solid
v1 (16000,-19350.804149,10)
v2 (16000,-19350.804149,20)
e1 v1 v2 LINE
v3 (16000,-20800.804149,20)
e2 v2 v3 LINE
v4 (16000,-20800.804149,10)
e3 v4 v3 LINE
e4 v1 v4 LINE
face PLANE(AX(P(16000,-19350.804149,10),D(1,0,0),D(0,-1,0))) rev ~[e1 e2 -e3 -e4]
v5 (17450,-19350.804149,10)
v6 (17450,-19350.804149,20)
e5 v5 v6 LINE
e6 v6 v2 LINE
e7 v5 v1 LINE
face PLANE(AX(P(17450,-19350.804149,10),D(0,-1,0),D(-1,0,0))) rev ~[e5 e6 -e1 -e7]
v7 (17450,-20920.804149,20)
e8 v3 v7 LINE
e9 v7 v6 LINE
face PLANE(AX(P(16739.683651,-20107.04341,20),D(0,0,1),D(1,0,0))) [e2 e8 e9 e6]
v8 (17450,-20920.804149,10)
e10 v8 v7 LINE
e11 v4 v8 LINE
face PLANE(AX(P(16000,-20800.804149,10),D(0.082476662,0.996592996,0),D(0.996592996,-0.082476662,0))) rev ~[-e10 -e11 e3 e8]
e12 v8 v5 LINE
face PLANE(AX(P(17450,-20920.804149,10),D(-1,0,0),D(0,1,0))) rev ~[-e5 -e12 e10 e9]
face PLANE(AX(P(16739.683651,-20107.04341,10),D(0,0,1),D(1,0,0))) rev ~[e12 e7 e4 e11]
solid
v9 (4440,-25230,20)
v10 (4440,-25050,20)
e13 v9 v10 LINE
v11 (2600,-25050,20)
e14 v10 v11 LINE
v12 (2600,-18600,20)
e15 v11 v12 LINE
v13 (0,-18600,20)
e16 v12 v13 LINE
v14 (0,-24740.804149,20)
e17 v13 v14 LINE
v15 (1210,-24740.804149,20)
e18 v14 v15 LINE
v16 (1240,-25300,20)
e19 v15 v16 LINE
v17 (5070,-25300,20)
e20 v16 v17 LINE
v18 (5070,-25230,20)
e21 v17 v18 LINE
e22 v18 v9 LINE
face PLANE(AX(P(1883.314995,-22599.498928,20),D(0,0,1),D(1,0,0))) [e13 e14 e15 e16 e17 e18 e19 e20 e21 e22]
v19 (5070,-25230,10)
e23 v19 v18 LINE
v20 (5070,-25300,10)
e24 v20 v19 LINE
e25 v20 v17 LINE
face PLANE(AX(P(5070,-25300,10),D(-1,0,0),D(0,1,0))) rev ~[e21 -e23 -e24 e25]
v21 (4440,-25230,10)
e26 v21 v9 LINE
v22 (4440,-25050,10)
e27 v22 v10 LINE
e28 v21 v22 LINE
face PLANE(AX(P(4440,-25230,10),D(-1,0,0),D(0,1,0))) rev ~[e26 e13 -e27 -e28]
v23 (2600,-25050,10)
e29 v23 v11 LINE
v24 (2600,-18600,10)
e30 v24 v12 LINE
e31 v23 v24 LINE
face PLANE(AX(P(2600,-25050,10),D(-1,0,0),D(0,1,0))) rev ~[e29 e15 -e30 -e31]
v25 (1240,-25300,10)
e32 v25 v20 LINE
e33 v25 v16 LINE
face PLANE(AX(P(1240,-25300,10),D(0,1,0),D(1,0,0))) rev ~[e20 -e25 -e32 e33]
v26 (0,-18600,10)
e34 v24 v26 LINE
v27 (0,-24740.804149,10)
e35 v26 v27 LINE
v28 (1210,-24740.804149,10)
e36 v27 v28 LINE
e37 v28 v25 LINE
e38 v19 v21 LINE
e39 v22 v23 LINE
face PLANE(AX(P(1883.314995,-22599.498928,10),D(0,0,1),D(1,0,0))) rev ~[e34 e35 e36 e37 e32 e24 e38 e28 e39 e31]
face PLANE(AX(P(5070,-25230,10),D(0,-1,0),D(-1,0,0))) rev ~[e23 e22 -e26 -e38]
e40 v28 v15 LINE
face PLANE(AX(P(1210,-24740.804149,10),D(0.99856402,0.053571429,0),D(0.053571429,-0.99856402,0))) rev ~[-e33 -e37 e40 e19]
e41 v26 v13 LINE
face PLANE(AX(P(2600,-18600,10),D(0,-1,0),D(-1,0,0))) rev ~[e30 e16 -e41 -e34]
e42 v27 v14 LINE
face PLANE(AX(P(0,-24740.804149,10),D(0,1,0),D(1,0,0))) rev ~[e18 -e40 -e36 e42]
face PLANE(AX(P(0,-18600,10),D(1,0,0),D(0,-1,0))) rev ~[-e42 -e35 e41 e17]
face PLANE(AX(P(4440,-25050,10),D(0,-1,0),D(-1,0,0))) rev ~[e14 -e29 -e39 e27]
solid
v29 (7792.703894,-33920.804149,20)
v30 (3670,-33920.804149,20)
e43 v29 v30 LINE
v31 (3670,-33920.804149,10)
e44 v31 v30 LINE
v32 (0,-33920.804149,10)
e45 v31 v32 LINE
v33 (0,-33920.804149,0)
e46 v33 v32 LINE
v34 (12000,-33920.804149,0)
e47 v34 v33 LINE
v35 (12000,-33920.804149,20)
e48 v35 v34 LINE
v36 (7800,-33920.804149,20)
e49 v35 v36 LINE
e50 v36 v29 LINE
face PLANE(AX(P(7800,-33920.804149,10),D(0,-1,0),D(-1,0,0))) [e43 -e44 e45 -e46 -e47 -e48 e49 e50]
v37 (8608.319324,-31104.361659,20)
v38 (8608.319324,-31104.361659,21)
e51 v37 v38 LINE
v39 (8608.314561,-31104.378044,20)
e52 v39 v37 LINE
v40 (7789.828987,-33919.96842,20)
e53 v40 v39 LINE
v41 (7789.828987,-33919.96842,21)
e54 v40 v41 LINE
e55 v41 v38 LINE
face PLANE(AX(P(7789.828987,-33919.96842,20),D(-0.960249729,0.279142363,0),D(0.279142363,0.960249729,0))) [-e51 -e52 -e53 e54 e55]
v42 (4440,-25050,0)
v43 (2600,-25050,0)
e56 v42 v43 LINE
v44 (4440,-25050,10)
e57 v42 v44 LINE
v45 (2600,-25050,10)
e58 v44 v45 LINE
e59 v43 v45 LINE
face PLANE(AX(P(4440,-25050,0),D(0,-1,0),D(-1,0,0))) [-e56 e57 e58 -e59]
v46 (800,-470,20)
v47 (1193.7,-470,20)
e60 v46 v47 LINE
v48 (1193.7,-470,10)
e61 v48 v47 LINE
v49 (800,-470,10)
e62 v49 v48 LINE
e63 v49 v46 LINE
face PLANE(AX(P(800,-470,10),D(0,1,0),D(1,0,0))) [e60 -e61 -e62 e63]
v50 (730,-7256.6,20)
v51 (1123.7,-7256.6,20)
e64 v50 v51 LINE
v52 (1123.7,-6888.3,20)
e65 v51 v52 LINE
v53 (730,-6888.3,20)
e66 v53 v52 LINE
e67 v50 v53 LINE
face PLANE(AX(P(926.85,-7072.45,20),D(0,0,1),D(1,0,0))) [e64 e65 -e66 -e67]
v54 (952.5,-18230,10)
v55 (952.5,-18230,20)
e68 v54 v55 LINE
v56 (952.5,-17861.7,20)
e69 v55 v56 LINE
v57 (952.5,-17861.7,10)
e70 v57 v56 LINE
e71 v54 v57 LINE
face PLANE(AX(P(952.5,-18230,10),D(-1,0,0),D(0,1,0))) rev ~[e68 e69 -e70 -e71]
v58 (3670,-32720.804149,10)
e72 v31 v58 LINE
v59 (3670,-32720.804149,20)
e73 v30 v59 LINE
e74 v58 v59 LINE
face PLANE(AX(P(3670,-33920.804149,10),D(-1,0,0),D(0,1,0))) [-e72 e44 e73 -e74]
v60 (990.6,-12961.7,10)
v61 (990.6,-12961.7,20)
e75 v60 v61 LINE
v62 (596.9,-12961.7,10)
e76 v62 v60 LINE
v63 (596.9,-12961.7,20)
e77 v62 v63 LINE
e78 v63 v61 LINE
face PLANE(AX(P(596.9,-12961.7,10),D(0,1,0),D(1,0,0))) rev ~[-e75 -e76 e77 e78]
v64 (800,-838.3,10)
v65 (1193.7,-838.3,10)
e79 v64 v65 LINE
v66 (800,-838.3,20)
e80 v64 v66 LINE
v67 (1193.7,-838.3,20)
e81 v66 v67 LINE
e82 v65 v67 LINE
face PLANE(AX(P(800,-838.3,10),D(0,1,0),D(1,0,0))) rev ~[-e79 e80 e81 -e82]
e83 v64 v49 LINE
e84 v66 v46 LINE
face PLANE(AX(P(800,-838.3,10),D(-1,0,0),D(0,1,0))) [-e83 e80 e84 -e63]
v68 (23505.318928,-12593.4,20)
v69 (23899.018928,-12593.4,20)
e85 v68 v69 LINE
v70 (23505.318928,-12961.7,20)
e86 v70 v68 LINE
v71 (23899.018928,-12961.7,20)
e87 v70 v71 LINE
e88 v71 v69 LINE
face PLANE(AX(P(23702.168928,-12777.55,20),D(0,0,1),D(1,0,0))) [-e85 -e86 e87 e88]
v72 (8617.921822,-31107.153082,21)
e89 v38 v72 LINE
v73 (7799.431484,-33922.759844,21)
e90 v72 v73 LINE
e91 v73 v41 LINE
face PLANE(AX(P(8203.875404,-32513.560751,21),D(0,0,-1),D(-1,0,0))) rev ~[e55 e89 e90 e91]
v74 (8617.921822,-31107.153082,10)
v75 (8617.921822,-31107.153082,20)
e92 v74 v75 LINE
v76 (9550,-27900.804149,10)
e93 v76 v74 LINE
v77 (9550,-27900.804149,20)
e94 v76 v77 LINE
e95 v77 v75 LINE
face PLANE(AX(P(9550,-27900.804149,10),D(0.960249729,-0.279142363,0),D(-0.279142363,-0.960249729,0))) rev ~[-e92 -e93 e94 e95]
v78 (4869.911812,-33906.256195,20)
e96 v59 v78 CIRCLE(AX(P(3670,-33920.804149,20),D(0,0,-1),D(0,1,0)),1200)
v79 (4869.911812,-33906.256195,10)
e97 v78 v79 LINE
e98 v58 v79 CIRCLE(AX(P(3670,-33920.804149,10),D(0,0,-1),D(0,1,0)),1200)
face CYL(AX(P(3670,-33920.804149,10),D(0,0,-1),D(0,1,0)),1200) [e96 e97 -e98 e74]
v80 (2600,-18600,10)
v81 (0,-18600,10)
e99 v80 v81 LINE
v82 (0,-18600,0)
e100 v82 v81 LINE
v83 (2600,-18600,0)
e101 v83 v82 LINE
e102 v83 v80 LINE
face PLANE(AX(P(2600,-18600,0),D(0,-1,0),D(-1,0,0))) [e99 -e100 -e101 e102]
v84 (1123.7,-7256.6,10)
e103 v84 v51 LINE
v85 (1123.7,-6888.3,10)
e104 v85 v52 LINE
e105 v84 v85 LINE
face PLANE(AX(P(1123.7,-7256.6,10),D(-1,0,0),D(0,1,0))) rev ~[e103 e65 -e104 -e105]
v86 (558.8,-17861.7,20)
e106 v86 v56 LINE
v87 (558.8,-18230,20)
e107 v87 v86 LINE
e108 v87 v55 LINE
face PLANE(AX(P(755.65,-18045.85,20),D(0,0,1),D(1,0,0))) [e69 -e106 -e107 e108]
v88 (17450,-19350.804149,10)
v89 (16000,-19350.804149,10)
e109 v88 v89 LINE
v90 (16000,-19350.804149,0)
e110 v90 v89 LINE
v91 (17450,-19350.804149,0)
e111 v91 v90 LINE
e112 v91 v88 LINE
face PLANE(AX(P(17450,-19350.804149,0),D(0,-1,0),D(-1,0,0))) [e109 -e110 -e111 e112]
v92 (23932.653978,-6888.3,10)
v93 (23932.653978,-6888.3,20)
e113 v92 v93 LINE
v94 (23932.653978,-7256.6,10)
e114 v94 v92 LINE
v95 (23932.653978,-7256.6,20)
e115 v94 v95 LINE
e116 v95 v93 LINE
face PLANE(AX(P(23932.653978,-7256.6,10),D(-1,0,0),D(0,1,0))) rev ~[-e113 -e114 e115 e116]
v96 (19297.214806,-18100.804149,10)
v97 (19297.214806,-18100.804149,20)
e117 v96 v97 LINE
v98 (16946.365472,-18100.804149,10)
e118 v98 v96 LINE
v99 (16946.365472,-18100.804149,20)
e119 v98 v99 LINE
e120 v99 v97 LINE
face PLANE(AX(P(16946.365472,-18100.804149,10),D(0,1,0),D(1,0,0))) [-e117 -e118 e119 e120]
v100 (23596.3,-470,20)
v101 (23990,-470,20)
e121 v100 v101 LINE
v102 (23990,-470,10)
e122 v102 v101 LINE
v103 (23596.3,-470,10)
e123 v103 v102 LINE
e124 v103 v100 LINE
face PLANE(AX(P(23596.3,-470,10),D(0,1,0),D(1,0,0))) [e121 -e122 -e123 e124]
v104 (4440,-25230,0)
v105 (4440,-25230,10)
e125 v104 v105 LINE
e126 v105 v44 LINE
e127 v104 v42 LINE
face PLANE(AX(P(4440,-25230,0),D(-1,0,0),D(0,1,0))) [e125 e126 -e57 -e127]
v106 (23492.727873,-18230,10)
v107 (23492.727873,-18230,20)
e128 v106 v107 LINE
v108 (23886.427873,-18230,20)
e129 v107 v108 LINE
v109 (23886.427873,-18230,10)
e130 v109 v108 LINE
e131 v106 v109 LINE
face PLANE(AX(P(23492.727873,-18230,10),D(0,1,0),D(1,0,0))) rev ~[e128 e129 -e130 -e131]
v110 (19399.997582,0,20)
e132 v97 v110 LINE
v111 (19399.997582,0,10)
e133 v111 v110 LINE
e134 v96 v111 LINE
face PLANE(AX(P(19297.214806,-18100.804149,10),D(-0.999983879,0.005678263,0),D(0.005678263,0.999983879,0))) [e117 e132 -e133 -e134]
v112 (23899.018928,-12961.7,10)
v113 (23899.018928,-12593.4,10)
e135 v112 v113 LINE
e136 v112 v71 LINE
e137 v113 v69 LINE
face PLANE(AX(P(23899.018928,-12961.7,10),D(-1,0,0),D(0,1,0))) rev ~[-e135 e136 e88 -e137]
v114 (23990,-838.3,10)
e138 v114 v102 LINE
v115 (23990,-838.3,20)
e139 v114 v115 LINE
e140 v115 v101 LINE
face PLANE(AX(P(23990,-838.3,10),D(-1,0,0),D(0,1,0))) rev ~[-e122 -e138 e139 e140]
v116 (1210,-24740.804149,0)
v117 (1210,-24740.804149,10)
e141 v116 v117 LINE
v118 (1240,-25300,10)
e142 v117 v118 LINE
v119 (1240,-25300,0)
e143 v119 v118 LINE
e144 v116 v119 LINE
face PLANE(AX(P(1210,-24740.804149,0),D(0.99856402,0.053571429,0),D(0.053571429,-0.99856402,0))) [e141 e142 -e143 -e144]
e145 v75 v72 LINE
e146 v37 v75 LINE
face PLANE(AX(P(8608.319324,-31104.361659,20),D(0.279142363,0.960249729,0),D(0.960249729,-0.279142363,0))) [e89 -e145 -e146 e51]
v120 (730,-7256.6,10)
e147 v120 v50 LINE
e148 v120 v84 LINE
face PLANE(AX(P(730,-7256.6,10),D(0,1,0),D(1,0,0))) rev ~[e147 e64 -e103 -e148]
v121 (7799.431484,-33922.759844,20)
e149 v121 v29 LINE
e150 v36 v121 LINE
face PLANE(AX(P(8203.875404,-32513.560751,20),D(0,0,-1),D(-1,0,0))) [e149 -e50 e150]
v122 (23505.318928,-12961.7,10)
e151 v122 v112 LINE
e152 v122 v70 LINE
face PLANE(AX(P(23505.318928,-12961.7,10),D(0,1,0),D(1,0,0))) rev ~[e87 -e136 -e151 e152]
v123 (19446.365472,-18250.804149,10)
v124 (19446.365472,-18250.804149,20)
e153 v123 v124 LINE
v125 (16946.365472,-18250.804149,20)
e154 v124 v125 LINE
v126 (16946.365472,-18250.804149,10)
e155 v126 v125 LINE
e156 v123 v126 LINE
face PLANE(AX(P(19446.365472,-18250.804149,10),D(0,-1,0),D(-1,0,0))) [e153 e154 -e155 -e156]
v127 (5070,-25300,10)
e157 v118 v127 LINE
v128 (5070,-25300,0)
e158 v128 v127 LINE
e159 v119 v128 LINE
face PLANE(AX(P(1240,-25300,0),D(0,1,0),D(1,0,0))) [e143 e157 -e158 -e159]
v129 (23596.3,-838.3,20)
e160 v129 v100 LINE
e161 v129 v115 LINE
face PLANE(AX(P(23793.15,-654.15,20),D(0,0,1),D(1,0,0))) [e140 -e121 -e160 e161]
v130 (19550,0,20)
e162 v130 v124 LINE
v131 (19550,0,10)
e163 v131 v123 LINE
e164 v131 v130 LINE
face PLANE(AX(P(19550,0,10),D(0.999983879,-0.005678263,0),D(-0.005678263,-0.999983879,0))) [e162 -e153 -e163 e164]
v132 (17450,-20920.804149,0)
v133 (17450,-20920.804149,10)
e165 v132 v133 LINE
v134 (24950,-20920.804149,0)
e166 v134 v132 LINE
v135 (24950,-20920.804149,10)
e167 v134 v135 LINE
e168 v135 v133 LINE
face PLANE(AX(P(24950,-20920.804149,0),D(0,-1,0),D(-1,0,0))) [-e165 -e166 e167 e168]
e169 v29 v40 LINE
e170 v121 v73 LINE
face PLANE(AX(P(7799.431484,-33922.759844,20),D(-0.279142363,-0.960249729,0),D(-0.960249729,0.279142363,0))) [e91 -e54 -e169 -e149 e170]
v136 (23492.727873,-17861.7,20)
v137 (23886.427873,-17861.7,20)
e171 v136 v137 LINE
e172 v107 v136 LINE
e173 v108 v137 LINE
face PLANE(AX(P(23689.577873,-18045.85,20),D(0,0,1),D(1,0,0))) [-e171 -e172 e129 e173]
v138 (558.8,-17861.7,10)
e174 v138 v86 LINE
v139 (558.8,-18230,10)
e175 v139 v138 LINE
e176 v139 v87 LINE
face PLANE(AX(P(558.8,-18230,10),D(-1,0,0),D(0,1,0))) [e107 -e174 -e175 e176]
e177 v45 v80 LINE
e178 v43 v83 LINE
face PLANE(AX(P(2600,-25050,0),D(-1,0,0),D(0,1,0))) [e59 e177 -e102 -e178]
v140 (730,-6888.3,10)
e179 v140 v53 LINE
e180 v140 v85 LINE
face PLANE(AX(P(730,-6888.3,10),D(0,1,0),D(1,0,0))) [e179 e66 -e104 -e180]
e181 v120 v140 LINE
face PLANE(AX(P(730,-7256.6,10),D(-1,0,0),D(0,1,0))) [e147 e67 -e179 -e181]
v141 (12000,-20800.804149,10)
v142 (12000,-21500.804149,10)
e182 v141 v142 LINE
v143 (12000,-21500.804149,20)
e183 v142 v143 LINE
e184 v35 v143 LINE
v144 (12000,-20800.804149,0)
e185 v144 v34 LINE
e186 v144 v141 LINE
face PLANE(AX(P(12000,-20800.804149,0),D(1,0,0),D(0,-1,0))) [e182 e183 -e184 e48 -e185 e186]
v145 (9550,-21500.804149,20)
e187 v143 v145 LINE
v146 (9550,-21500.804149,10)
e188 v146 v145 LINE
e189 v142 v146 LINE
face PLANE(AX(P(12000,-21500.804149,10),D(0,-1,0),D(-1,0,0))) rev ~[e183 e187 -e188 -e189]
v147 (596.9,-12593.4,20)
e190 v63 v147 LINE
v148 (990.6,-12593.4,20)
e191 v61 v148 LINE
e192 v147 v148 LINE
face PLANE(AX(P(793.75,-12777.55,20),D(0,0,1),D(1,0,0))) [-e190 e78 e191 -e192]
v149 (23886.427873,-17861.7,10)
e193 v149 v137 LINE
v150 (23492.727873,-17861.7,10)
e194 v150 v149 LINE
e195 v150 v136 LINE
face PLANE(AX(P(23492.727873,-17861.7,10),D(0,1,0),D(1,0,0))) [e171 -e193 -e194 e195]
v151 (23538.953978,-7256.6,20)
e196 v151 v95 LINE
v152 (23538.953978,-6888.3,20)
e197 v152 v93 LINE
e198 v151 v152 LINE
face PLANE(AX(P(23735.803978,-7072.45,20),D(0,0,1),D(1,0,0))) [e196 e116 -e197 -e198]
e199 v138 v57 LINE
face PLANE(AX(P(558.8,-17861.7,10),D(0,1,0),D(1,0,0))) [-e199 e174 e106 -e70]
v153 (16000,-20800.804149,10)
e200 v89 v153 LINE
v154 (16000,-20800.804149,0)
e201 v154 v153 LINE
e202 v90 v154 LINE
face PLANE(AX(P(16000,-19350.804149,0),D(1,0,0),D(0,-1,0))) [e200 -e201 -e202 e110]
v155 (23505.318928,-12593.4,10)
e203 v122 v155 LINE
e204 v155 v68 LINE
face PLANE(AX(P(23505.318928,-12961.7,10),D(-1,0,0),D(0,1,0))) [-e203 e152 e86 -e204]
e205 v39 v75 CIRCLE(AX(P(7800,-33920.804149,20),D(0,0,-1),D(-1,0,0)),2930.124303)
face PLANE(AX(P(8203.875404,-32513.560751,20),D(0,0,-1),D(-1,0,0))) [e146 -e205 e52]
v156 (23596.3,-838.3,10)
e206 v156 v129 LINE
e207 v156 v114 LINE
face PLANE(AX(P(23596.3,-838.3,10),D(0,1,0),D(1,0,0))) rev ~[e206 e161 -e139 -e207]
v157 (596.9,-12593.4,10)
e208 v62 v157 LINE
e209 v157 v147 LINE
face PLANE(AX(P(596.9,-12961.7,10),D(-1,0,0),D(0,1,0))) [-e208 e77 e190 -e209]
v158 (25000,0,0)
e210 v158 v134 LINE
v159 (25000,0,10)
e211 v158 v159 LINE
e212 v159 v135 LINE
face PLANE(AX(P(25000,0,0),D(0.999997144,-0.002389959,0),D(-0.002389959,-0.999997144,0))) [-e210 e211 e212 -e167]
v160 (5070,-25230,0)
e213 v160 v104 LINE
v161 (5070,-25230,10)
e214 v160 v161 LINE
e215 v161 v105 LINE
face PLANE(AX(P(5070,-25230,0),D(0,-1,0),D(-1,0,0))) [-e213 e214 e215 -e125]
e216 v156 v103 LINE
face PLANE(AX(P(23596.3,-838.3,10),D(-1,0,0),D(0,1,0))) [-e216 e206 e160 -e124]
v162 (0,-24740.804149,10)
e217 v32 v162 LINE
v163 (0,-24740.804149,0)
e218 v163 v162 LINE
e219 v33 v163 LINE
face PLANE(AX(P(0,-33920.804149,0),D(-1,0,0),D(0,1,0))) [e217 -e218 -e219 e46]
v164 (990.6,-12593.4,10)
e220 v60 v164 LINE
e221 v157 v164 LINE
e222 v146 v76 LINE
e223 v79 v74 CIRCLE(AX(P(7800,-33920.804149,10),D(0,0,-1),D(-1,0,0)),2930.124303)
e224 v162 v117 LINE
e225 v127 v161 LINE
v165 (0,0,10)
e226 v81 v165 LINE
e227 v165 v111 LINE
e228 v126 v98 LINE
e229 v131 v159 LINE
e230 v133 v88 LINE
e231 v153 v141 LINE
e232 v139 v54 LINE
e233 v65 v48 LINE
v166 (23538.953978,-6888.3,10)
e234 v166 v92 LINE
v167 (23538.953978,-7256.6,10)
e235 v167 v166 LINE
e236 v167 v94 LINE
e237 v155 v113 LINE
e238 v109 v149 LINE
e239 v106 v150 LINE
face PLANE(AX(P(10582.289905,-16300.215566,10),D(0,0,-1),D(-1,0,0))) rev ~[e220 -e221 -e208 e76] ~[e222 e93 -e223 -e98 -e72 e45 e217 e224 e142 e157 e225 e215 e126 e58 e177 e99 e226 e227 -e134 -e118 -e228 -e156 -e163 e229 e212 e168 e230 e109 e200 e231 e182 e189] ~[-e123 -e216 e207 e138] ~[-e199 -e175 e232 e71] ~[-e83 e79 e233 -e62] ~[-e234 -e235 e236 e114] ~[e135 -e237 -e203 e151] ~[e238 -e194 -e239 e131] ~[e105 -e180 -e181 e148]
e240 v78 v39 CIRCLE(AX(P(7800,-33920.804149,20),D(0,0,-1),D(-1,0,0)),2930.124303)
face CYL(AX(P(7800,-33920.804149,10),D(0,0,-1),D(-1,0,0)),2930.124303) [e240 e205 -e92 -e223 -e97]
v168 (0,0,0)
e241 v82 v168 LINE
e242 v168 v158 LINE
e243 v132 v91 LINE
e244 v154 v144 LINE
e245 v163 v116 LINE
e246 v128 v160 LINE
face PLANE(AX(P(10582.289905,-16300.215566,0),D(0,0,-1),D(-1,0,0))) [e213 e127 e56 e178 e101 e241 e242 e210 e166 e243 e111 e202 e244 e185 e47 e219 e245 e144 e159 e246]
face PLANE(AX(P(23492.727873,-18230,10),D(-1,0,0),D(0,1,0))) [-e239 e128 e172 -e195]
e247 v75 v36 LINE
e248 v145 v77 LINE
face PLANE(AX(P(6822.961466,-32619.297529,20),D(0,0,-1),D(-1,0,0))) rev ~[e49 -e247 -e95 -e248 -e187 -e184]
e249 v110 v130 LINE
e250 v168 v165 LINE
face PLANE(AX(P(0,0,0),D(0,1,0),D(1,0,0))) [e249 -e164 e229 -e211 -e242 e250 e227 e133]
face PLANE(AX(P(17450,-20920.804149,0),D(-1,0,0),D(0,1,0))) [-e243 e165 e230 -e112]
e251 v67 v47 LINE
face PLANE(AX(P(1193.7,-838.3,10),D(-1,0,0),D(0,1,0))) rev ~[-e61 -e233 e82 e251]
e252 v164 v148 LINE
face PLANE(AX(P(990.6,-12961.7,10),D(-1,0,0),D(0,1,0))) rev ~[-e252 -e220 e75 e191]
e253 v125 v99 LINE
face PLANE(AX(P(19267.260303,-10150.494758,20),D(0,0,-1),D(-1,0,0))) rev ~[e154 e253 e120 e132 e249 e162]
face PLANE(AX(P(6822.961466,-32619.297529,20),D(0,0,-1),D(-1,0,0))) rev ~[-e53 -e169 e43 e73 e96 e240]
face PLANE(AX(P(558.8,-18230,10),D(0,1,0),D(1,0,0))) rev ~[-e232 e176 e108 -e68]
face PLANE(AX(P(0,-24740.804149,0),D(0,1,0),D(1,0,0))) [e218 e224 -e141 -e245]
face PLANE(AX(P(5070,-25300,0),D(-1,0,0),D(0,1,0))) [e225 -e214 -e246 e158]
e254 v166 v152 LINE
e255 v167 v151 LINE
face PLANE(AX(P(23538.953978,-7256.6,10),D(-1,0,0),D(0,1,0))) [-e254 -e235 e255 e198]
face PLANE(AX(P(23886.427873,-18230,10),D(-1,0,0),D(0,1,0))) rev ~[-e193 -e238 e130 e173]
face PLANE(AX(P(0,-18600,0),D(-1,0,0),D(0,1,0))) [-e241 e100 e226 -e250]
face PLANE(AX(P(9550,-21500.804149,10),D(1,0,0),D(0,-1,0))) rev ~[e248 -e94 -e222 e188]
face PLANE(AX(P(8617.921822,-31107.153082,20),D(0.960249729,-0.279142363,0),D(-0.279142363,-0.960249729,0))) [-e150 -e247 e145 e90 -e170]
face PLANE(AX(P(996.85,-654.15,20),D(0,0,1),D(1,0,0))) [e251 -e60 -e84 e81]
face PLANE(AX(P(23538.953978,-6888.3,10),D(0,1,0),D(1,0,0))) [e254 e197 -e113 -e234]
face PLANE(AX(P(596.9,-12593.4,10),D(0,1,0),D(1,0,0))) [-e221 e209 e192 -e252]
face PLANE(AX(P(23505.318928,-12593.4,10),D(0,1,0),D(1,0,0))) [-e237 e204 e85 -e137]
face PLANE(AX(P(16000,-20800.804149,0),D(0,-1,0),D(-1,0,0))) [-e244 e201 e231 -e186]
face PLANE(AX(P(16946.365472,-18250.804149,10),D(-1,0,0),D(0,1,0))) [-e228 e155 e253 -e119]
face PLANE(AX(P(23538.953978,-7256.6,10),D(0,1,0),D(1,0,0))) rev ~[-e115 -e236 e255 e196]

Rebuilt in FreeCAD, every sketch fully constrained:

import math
import FreeCAD as App
import Part
import Sketcher

doc = App.newDocument("Part")
body = doc.addObject("PartDesign::Body", "Body")
body.AllowCompound = True

sketch1 = doc.addObject("Sketcher::SketchObject", "Sketch")
body.addObject(sketch1)
sketch1.AttachmentSupport = (doc.XY_Plane, [""])
sketch1.MapMode = "FlatFace"
sketch1.addGeometry(Part.LineSegment(App.Vector(25000, 0, 0), App.Vector(0, 0, 0)), False)
sketch1.addGeometry(Part.LineSegment(App.Vector(0, 0, 0), App.Vector(0, -18600, 0)), False)
sketch1.addGeometry(Part.LineSegment(App.Vector(0, -18600, 0), App.Vector(2600, -18600, 0)), False)
sketch1.addGeometry(Part.LineSegment(App.Vector(2600, -18600, 0), App.Vector(2600, -25050, 0)), False)
sketch1.addGeometry(Part.LineSegment(App.Vector(2600, -25050, 0), App.Vector(4440, -25050, 0)), False)
sketch1.addGeometry(Part.LineSegment(App.Vector(4440, -25050, 0), App.Vector(4440, -25230, 0)), False)
sketch1.addGeometry(Part.LineSegment(App.Vector(4440, -25230, 0), App.Vector(5070, -25230, 0)), False)
sketch1.addGeometry(Part.LineSegment(App.Vector(5070, -25230, 0), App.Vector(5070, -25300, 0)), False)
sketch1.addGeometry(Part.LineSegment(App.Vector(5070, -25300, 0), App.Vector(1240, -25300, 0)), False)
sketch1.addGeometry(Part.LineSegment(App.Vector(1240, -25300, 0), App.Vector(1210, -24740.804149, 0)), False)
sketch1.addGeometry(Part.LineSegment(App.Vector(1210, -24740.804149, 0), App.Vector(0, -24740.804149, 0)), False)
sketch1.addGeometry(Part.LineSegment(App.Vector(0, -24740.804149, 0), App.Vector(0, -33920.804149, 0)), False)
sketch1.addGeometry(Part.LineSegment(App.Vector(0, -33920.804149, 0), App.Vector(12000, -33920.804149, 0)), False)
sketch1.addGeometry(Part.LineSegment(App.Vector(12000, -33920.804149, 0), App.Vector(12000, -20800.804149, 0)), False)
sketch1.addGeometry(Part.LineSegment(App.Vector(12000, -20800.804149, 0), App.Vector(16000, -20800.804149, 0)), False)
sketch1.addGeometry(Part.LineSegment(App.Vector(16000, -20800.804149, 0), App.Vector(16000, -19350.804149, 0)), False)
sketch1.addGeometry(Part.LineSegment(App.Vector(16000, -19350.804149, 0), App.Vector(17450, -19350.804149, 0)), False)
sketch1.addGeometry(Part.LineSegment(App.Vector(17450, -19350.804149, 0), App.Vector(17450, -20920.804149, 0)), False)
sketch1.addGeometry(Part.LineSegment(App.Vector(17450, -20920.804149, 0), App.Vector(24950, -20920.804149, 0)), False)
sketch1.addGeometry(Part.LineSegment(App.Vector(24950, -20920.804149, 0), App.Vector(25000, 0, 0)), False)
sketch1.addConstraint(Sketcher.Constraint("Coincident", 0, 2, 1, 1))
sketch1.addConstraint(Sketcher.Constraint("Coincident", 1, 2, 2, 1))
sketch1.addConstraint(Sketcher.Constraint("Coincident", 2, 2, 3, 1))
sketch1.addConstraint(Sketcher.Constraint("Coincident", 3, 2, 4, 1))
sketch1.addConstraint(Sketcher.Constraint("Coincident", 4, 2, 5, 1))
sketch1.addConstraint(Sketcher.Constraint("Coincident", 5, 2, 6, 1))
sketch1.addConstraint(Sketcher.Constraint("Coincident", 6, 2, 7, 1))
sketch1.addConstraint(Sketcher.Constraint("Coincident", 7, 2, 8, 1))
sketch1.addConstraint(Sketcher.Constraint("Coincident", 8, 2, 9, 1))
sketch1.addConstraint(Sketcher.Constraint("Coincident", 9, 2, 10, 1))
sketch1.addConstraint(Sketcher.Constraint("Coincident", 10, 2, 11, 1))
sketch1.addConstraint(Sketcher.Constraint("Coincident", 11, 2, 12, 1))
sketch1.addConstraint(Sketcher.Constraint("Coincident", 12, 2, 13, 1))
sketch1.addConstraint(Sketcher.Constraint("Coincident", 13, 2, 14, 1))
sketch1.addConstraint(Sketcher.Constraint("Coincident", 14, 2, 15, 1))
sketch1.addConstraint(Sketcher.Constraint("Coincident", 15, 2, 16, 1))
sketch1.addConstraint(Sketcher.Constraint("Coincident", 16, 2, 17, 1))
sketch1.addConstraint(Sketcher.Constraint("Coincident", 17, 2, 18, 1))
sketch1.addConstraint(Sketcher.Constraint("Coincident", 18, 2, 19, 1))
sketch1.addConstraint(Sketcher.Constraint("Coincident", 19, 2, 0, 1))
sketch1.addConstraint(Sketcher.Constraint("Horizontal", 0))
sketch1.addConstraint(Sketcher.Constraint("Vertical", 1))
sketch1.addConstraint(Sketcher.Constraint("Horizontal", 2))
sketch1.addConstraint(Sketcher.Constraint("Vertical", 3))
sketch1.addConstraint(Sketcher.Constraint("Horizontal", 4))
sketch1.addConstraint(Sketcher.Constraint("Vertical", 5))
sketch1.addConstraint(Sketcher.Constraint("Horizontal", 6))
sketch1.addConstraint(Sketcher.Constraint("Vertical", 7))
sketch1.addConstraint(Sketcher.Constraint("Horizontal", 8))
sketch1.addConstraint(Sketcher.Constraint("Horizontal", 10))
sketch1.addConstraint(Sketcher.Constraint("Vertical", 11))
sketch1.addConstraint(Sketcher.Constraint("Horizontal", 12))
sketch1.addConstraint(Sketcher.Constraint("Vertical", 13))
sketch1.addConstraint(Sketcher.Constraint("Horizontal", 14))
sketch1.addConstraint(Sketcher.Constraint("Vertical", 15))
sketch1.addConstraint(Sketcher.Constraint("Horizontal", 16))
sketch1.addConstraint(Sketcher.Constraint("Vertical", 17))
sketch1.addConstraint(Sketcher.Constraint("Horizontal", 18))
sketch1.addConstraint(Sketcher.Constraint("Coincident", 0, 2, -1, 1))
sketch1.addConstraint(Sketcher.Constraint("PointOnObject", 10, 2, -2))
sketch1.addConstraint(Sketcher.Constraint("Equal", 16, 15))
sketch1.addConstraint(Sketcher.Constraint("DistanceX", 0, 2, 0, 1, 25000.0))
sketch1.addConstraint(Sketcher.Constraint("DistanceX", 2, 1, 2, 2, 2600.0))
sketch1.addConstraint(Sketcher.Constraint("DistanceX", 4, 1, 4, 2, 1840.0))
sketch1.addConstraint(Sketcher.Constraint("DistanceX", 6, 1, 6, 2, 630.0))
sketch1.addConstraint(Sketcher.Constraint("DistanceX", 8, 2, 8, 1, 3830.0))
sketch1.addConstraint(Sketcher.Constraint("DistanceX", 10, 2, 10, 1, 1210.0))
sketch1.addConstraint(Sketcher.Constraint("DistanceX", 12, 1, 12, 2, 12000.0))
sketch1.addConstraint(Sketcher.Constraint("DistanceX", 14, 1, 14, 2, 4000.0))
sketch1.addConstraint(Sketcher.Constraint("DistanceX", 16, 1, 16, 2, 1450.0))
sketch1.addConstraint(Sketcher.Constraint("DistanceX", 18, 1, 18, 2, 7500.0))
sketch1.addConstraint(Sketcher.Constraint("DistanceY", 1, 2, 1, 1, 18600.0))
sketch1.addConstraint(Sketcher.Constraint("DistanceY", 3, 2, 3, 1, 6450.0))
sketch1.addConstraint(Sketcher.Constraint("DistanceY", 5, 2, 5, 1, 180.0))
sketch1.addConstraint(Sketcher.Constraint("DistanceY", 7, 2, 7, 1, 70.0))
sketch1.addConstraint(Sketcher.Constraint("DistanceY", 11, 2, 11, 1, 9180.0))
sketch1.addConstraint(Sketcher.Constraint("DistanceY", 13, 1, 13, 2, 13120.0))
sketch1.addConstraint(Sketcher.Constraint("DistanceY", 17, 2, 17, 1, 1570.0))
sketch1.addConstraint(Sketcher.Constraint("Distance", 9, 560.0))
pad1 = doc.addObject("PartDesign::Pad", "Pad")
body.addObject(pad1)
pad1.Profile = sketch1
pad1.Length = 10

sketch2 = doc.addObject("Sketcher::SketchObject", "Sketch001")
body.addObject(sketch2)
sketch2.AttachmentSupport = (doc.XY_Plane, [""])
sketch2.MapMode = "FlatFace"
sketch2.AttachmentOffset = App.Placement(App.Vector(0, 0, 10), App.Rotation())
sketch2.addGeometry(Part.LineSegment(App.Vector(800, -470, 0), App.Vector(800, -838.3, 0)), False)
sketch2.addGeometry(Part.LineSegment(App.Vector(800, -838.3, 0), App.Vector(1193.7, -838.3, 0)), False)
sketch2.addGeometry(Part.LineSegment(App.Vector(1193.7, -838.3, 0), App.Vector(1193.7, -470, 0)), False)
sketch2.addGeometry(Part.LineSegment(App.Vector(1193.7, -470, 0), App.Vector(800, -470, 0)), False)
sketch2.addGeometry(Part.LineSegment(App.Vector(730, -6888.3, 0), App.Vector(730, -7256.6, 0)), False)
sketch2.addGeometry(Part.LineSegment(App.Vector(730, -7256.6, 0), App.Vector(1123.7, -7256.6, 0)), False)
sketch2.addGeometry(Part.LineSegment(App.Vector(1123.7, -7256.6, 0), App.Vector(1123.7, -6888.3, 0)), False)
sketch2.addGeometry(Part.LineSegment(App.Vector(1123.7, -6888.3, 0), App.Vector(730, -6888.3, 0)), False)
sketch2.addGeometry(Part.LineSegment(App.Vector(558.8, -17861.7, 0), App.Vector(558.8, -18230, 0)), False)
sketch2.addGeometry(Part.LineSegment(App.Vector(558.8, -18230, 0), App.Vector(952.5, -18230, 0)), False)
sketch2.addGeometry(Part.LineSegment(App.Vector(952.5, -18230, 0), App.Vector(952.5, -17861.7, 0)), False)
sketch2.addGeometry(Part.LineSegment(App.Vector(952.5, -17861.7, 0), App.Vector(558.8, -17861.7, 0)), False)
sketch2.addGeometry(Part.LineSegment(App.Vector(596.9, -12593.4, 0), App.Vector(596.9, -12961.7, 0)), False)
sketch2.addGeometry(Part.LineSegment(App.Vector(596.9, -12961.7, 0), App.Vector(990.6, -12961.7, 0)), False)
sketch2.addGeometry(Part.LineSegment(App.Vector(990.6, -12961.7, 0), App.Vector(990.6, -12593.4, 0)), False)
sketch2.addGeometry(Part.LineSegment(App.Vector(990.6, -12593.4, 0), App.Vector(596.9, -12593.4, 0)), False)
sketch2.addGeometry(Part.LineSegment(App.Vector(16946.365472, -18250.804149, 0), App.Vector(19446.365472, -18250.804149, 0)), False)
sketch2.addGeometry(Part.LineSegment(App.Vector(19446.365472, -18250.804149, 0), App.Vector(19550, 0, 0)), False)
sketch2.addGeometry(Part.LineSegment(App.Vector(19550, 0, 0), App.Vector(19399.997582, 0, 0)), False)
sketch2.addGeometry(Part.LineSegment(App.Vector(19399.997582, 0, 0), App.Vector(19297.214806, -18100.804149, 0)), False)
sketch2.addGeometry(Part.LineSegment(App.Vector(19297.214806, -18100.804149, 0), App.Vector(16946.365472, -18100.804149, 0)), False)
sketch2.addGeometry(Part.LineSegment(App.Vector(16946.365472, -18100.804149, 0), App.Vector(16946.365472, -18250.804149, 0)), False)
sketch2.addGeometry(Part.LineSegment(App.Vector(16000, -20800.804149, 0), App.Vector(17450, -20920.804149, 0)), False)
sketch2.addGeometry(Part.LineSegment(App.Vector(17450, -20920.804149, 0), App.Vector(17450, -19350.804149, 0)), False)
sketch2.addGeometry(Part.LineSegment(App.Vector(17450, -19350.804149, 0), App.Vector(16000, -19350.804149, 0)), False)
sketch2.addGeometry(Part.LineSegment(App.Vector(16000, -19350.804149, 0), App.Vector(16000, -20800.804149, 0)), False)
sketch2.addGeometry(Part.LineSegment(App.Vector(12000, -21500.804149, 0), App.Vector(9550, -21500.804149, 0)), False)
sketch2.addGeometry(Part.LineSegment(App.Vector(9550, -21500.804149, 0), App.Vector(9550, -27900.804149, 0)), False)
sketch2.addGeometry(Part.LineSegment(App.Vector(9550, -27900.804149, 0), App.Vector(7800, -33920.804149, 0)), False)
sketch2.addGeometry(Part.LineSegment(App.Vector(7800, -33920.804149, 0), App.Vector(12000, -33920.804149, 0)), False)
sketch2.addGeometry(Part.LineSegment(App.Vector(12000, -33920.804149, 0), App.Vector(12000, -21500.804149, 0)), False)
sketch2.addGeometry(Part.LineSegment(App.Vector(3670, -32720.804149, 0), App.Vector(3670, -33920.804149, 0)), False)
sketch2.addGeometry(Part.LineSegment(App.Vector(3670, -33920.804149, 0), App.Vector(4870, -33920.804149, 0)), False)
sketch2.addGeometry(Part.ArcOfCircle(Part.Circle(App.Vector(3670, -33920.804149, 0), App.Vector(0, 0, 1), 1200), math.radians(0), math.radians(90)), False)
sketch2.addGeometry(Part.LineSegment(App.Vector(0, -18600, 0), App.Vector(0, -24740.804149, 0)), False)
sketch2.addGeometry(Part.LineSegment(App.Vector(0, -24740.804149, 0), App.Vector(1210, -24740.804149, 0)), False)
sketch2.addGeometry(Part.LineSegment(App.Vector(1210, -24740.804149, 0), App.Vector(1240, -25300, 0)), False)
sketch2.addGeometry(Part.LineSegment(App.Vector(1240, -25300, 0), App.Vector(5070, -25300, 0)), False)
sketch2.addGeometry(Part.LineSegment(App.Vector(5070, -25300, 0), App.Vector(5070, -25230, 0)), False)
sketch2.addGeometry(Part.LineSegment(App.Vector(5070, -25230, 0), App.Vector(4440, -25230, 0)), False)
sketch2.addGeometry(Part.LineSegment(App.Vector(4440, -25230, 0), App.Vector(4440, -25050, 0)), False)
sketch2.addGeometry(Part.LineSegment(App.Vector(4440, -25050, 0), App.Vector(2600, -25050, 0)), False)
sketch2.addGeometry(Part.LineSegment(App.Vector(2600, -25050, 0), App.Vector(2600, -18600, 0)), False)
sketch2.addGeometry(Part.LineSegment(App.Vector(2600, -18600, 0), App.Vector(0, -18600, 0)), False)
sketch2.addGeometry(Part.LineSegment(App.Vector(23596.3, -470, 0), App.Vector(23596.3, -838.3, 0)), False)
sketch2.addGeometry(Part.LineSegment(App.Vector(23596.3, -838.3, 0), App.Vector(23990, -838.3, 0)), False)
sketch2.addGeometry(Part.LineSegment(App.Vector(23990, -838.3, 0), App.Vector(23990, -470, 0)), False)
sketch2.addGeometry(Part.LineSegment(App.Vector(23990, -470, 0), App.Vector(23596.3, -470, 0)), False)
sketch2.addGeometry(Part.LineSegment(App.Vector(23538.953978, -6888.3, 0), App.Vector(23538.953978, -7256.6, 0)), False)
sketch2.addGeometry(Part.LineSegment(App.Vector(23538.953978, -7256.6, 0), App.Vector(23932.653978, -7256.6, 0)), False)
sketch2.addGeometry(Part.LineSegment(App.Vector(23932.653978, -7256.6, 0), App.Vector(23932.653978, -6888.3, 0)), False)
sketch2.addGeometry(Part.LineSegment(App.Vector(23932.653978, -6888.3, 0), App.Vector(23538.953978, -6888.3, 0)), False)
sketch2.addGeometry(Part.LineSegment(App.Vector(23505.318928, -12593.4, 0), App.Vector(23505.318928, -12961.7, 0)), False)
sketch2.addGeometry(Part.LineSegment(App.Vector(23505.318928, -12961.7, 0), App.Vector(23899.018928, -12961.7, 0)), False)
sketch2.addGeometry(Part.LineSegment(App.Vector(23899.018928, -12961.7, 0), App.Vector(23899.018928, -12593.4, 0)), False)
sketch2.addGeometry(Part.LineSegment(App.Vector(23899.018928, -12593.4, 0), App.Vector(23505.318928, -12593.4, 0)), False)
sketch2.addGeometry(Part.LineSegment(App.Vector(23492.727873, -17861.7, 0), App.Vector(23492.727873, -18230, 0)), False)
sketch2.addGeometry(Part.LineSegment(App.Vector(23492.727873, -18230, 0), App.Vector(23886.427873, -18230, 0)), False)
sketch2.addGeometry(Part.LineSegment(App.Vector(23886.427873, -18230, 0), App.Vector(23886.427873, -17861.7, 0)), False)
sketch2.addGeometry(Part.LineSegment(App.Vector(23886.427873, -17861.7, 0), App.Vector(23492.727873, -17861.7, 0)), False)
sketch2.addConstraint(Sketcher.Constraint("Coincident", 0, 2, 1, 1))
sketch2.addConstraint(Sketcher.Constraint("Coincident", 1, 2, 2, 1))
sketch2.addConstraint(Sketcher.Constraint("Coincident", 2, 2, 3, 1))
sketch2.addConstraint(Sketcher.Constraint("Coincident", 3, 2, 0, 1))
sketch2.addConstraint(Sketcher.Constraint("Coincident", 4, 2, 5, 1))
sketch2.addConstraint(Sketcher.Constraint("Coincident", 5, 2, 6, 1))
sketch2.addConstraint(Sketcher.Constraint("Coincident", 6, 2, 7, 1))
sketch2.addConstraint(Sketcher.Constraint("Coincident", 7, 2, 4, 1))
sketch2.addConstraint(Sketcher.Constraint("Coincident", 8, 2, 9, 1))
sketch2.addConstraint(Sketcher.Constraint("Coincident", 9, 2, 10, 1))
sketch2.addConstraint(Sketcher.Constraint("Coincident", 10, 2, 11, 1))
sketch2.addConstraint(Sketcher.Constraint("Coincident", 11, 2, 8, 1))
sketch2.addConstraint(Sketcher.Constraint("Coincident", 12, 2, 13, 1))
sketch2.addConstraint(Sketcher.Constraint("Coincident", 13, 2, 14, 1))
sketch2.addConstraint(Sketcher.Constraint("Coincident", 14, 2, 15, 1))
sketch2.addConstraint(Sketcher.Constraint("Coincident", 15, 2, 12, 1))
sketch2.addConstraint(Sketcher.Constraint("Coincident", 16, 2, 17, 1))
sketch2.addConstraint(Sketcher.Constraint("Coincident", 17, 2, 18, 1))
sketch2.addConstraint(Sketcher.Constraint("Coincident", 18, 2, 19, 1))
sketch2.addConstraint(Sketcher.Constraint("Coincident", 19, 2, 20, 1))
sketch2.addConstraint(Sketcher.Constraint("Coincident", 20, 2, 21, 1))
sketch2.addConstraint(Sketcher.Constraint("Coincident", 21, 2, 16, 1))
sketch2.addConstraint(Sketcher.Constraint("Coincident", 22, 2, 23, 1))
sketch2.addConstraint(Sketcher.Constraint("Coincident", 23, 2, 24, 1))
sketch2.addConstraint(Sketcher.Constraint("Coincident", 24, 2, 25, 1))
sketch2.addConstraint(Sketcher.Constraint("Coincident", 25, 2, 22, 1))
sketch2.addConstraint(Sketcher.Constraint("Coincident", 26, 2, 27, 1))
sketch2.addConstraint(Sketcher.Constraint("Coincident", 27, 2, 28, 1))
sketch2.addConstraint(Sketcher.Constraint("Coincident", 28, 2, 29, 1))
sketch2.addConstraint(Sketcher.Constraint("Coincident", 29, 2, 30, 1))
sketch2.addConstraint(Sketcher.Constraint("Coincident", 30, 2, 26, 1))
sketch2.addConstraint(Sketcher.Constraint("Coincident", 31, 2, 32, 1))
sketch2.addConstraint(Sketcher.Constraint("Coincident", 32, 2, 33, 1))
sketch2.addConstraint(Sketcher.Constraint("Coincident", 33, 2, 31, 1))
sketch2.addConstraint(Sketcher.Constraint("Coincident", 34, 2, 35, 1))
sketch2.addConstraint(Sketcher.Constraint("Coincident", 35, 2, 36, 1))
sketch2.addConstraint(Sketcher.Constraint("Coincident", 36, 2, 37, 1))
sketch2.addConstraint(Sketcher.Constraint("Coincident", 37, 2, 38, 1))
sketch2.addConstraint(Sketcher.Constraint("Coincident", 38, 2, 39, 1))
sketch2.addConstraint(Sketcher.Constraint("Coincident", 39, 2, 40, 1))
sketch2.addConstraint(Sketcher.Constraint("Coincident", 40, 2, 41, 1))
sketch2.addConstraint(Sketcher.Constraint("Coincident", 41, 2, 42, 1))
sketch2.addConstraint(Sketcher.Constraint("Coincident", 42, 2, 43, 1))
sketch2.addConstraint(Sketcher.Constraint("Coincident", 43, 2, 34, 1))
sketch2.addConstraint(Sketcher.Constraint("Coincident", 44, 2, 45, 1))
sketch2.addConstraint(Sketcher.Constraint("Coincident", 45, 2, 46, 1))
sketch2.addConstraint(Sketcher.Constraint("Coincident", 46, 2, 47, 1))
sketch2.addConstraint(Sketcher.Constraint("Coincident", 47, 2, 44, 1))
sketch2.addConstraint(Sketcher.Constraint("Coincident", 48, 2, 49, 1))
sketch2.addConstraint(Sketcher.Constraint("Coincident", 49, 2, 50, 1))
sketch2.addConstraint(Sketcher.Constraint("Coincident", 50, 2, 51, 1))
sketch2.addConstraint(Sketcher.Constraint("Coincident", 51, 2, 48, 1))
sketch2.addConstraint(Sketcher.Constraint("Coincident", 52, 2, 53, 1))
sketch2.addConstraint(Sketcher.Constraint("Coincident", 53, 2, 54, 1))
sketch2.addConstraint(Sketcher.Constraint("Coincident", 54, 2, 55, 1))
sketch2.addConstraint(Sketcher.Constraint("Coincident", 55, 2, 52, 1))
sketch2.addConstraint(Sketcher.Constraint("Coincident", 56, 2, 57, 1))
sketch2.addConstraint(Sketcher.Constraint("Coincident", 57, 2, 58, 1))
sketch2.addConstraint(Sketcher.Constraint("Coincident", 58, 2, 59, 1))
sketch2.addConstraint(Sketcher.Constraint("Coincident", 59, 2, 56, 1))
sketch2.addConstraint(Sketcher.Constraint("Vertical", 0))
sketch2.addConstraint(Sketcher.Constraint("Horizontal", 1))
sketch2.addConstraint(Sketcher.Constraint("Vertical", 2))
sketch2.addConstraint(Sketcher.Constraint("Horizontal", 3))
sketch2.addConstraint(Sketcher.Constraint("Vertical", 4))
sketch2.addConstraint(Sketcher.Constraint("Horizontal", 5))
sketch2.addConstraint(Sketcher.Constraint("Vertical", 6))
sketch2.addConstraint(Sketcher.Constraint("Horizontal", 7))
sketch2.addConstraint(Sketcher.Constraint("Vertical", 8))
sketch2.addConstraint(Sketcher.Constraint("Horizontal", 9))
sketch2.addConstraint(Sketcher.Constraint("Vertical", 10))
sketch2.addConstraint(Sketcher.Constraint("Horizontal", 11))
sketch2.addConstraint(Sketcher.Constraint("Vertical", 12))
sketch2.addConstraint(Sketcher.Constraint("Horizontal", 13))
sketch2.addConstraint(Sketcher.Constraint("Vertical", 14))
sketch2.addConstraint(Sketcher.Constraint("Horizontal", 15))
sketch2.addConstraint(Sketcher.Constraint("Horizontal", 16))
sketch2.addConstraint(Sketcher.Constraint("Horizontal", 18))
sketch2.addConstraint(Sketcher.Constraint("Horizontal", 20))
sketch2.addConstraint(Sketcher.Constraint("Vertical", 21))
sketch2.addConstraint(Sketcher.Constraint("Vertical", 23))
sketch2.addConstraint(Sketcher.Constraint("Horizontal", 24))
sketch2.addConstraint(Sketcher.Constraint("Vertical", 25))
sketch2.addConstraint(Sketcher.Constraint("Horizontal", 26))
sketch2.addConstraint(Sketcher.Constraint("Vertical", 27))
sketch2.addConstraint(Sketcher.Constraint("Horizontal", 29))
sketch2.addConstraint(Sketcher.Constraint("Vertical", 30))
sketch2.addConstraint(Sketcher.Constraint("Vertical", 31))
sketch2.addConstraint(Sketcher.Constraint("Horizontal", 32))
sketch2.addConstraint(Sketcher.Constraint("Vertical", 34))
sketch2.addConstraint(Sketcher.Constraint("Horizontal", 35))
sketch2.addConstraint(Sketcher.Constraint("Horizontal", 37))
sketch2.addConstraint(Sketcher.Constraint("Vertical", 38))
sketch2.addConstraint(Sketcher.Constraint("Horizontal", 39))
sketch2.addConstraint(Sketcher.Constraint("Vertical", 40))
sketch2.addConstraint(Sketcher.Constraint("Horizontal", 41))
sketch2.addConstraint(Sketcher.Constraint("Vertical", 42))
sketch2.addConstraint(Sketcher.Constraint("Horizontal", 43))
sketch2.addConstraint(Sketcher.Constraint("Vertical", 44))
sketch2.addConstraint(Sketcher.Constraint("Horizontal", 45))
sketch2.addConstraint(Sketcher.Constraint("Vertical", 46))
sketch2.addConstraint(Sketcher.Constraint("Horizontal", 47))
sketch2.addConstraint(Sketcher.Constraint("Vertical", 48))
sketch2.addConstraint(Sketcher.Constraint("Horizontal", 49))
sketch2.addConstraint(Sketcher.Constraint("Vertical", 50))
sketch2.addConstraint(Sketcher.Constraint("Horizontal", 51))
sketch2.addConstraint(Sketcher.Constraint("Vertical", 52))
sketch2.addConstraint(Sketcher.Constraint("Horizontal", 53))
sketch2.addConstraint(Sketcher.Constraint("Vertical", 54))
sketch2.addConstraint(Sketcher.Constraint("Horizontal", 55))
sketch2.addConstraint(Sketcher.Constraint("Vertical", 56))
sketch2.addConstraint(Sketcher.Constraint("Horizontal", 57))
sketch2.addConstraint(Sketcher.Constraint("Vertical", 58))
sketch2.addConstraint(Sketcher.Constraint("Horizontal", 59))
sketch2.addConstraint(Sketcher.Constraint("Coincident", 31, 2, 33, 3))
sketch2.addConstraint(Sketcher.Constraint("PointOnObject", 17, 2, -1))
sketch2.addConstraint(Sketcher.Constraint("PointOnObject", 34, 2, -2))
sketch2.addConstraint(Sketcher.Constraint("Parallel", 17, 19))
sketch2.addConstraint(Sketcher.Constraint("Horizontal", 33, 3, 28, 2))
sketch2.addConstraint(Sketcher.Constraint("Horizontal", 1, 2, 44, 2))
sketch2.addConstraint(Sketcher.Constraint("Horizontal", 3, 2, 46, 2))
sketch2.addConstraint(Sketcher.Constraint("Horizontal", 5, 2, 48, 2))
sketch2.addConstraint(Sketcher.Constraint("Horizontal", 7, 2, 50, 2))
sketch2.addConstraint(Sketcher.Constraint("Horizontal", 13, 2, 52, 2))
sketch2.addConstraint(Sketcher.Constraint("Horizontal", 15, 2, 54, 2))
sketch2.addConstraint(Sketcher.Constraint("Horizontal", 9, 2, 56, 2))
sketch2.addConstraint(Sketcher.Constraint("Horizontal", 11, 2, 58, 2))
sketch2.addConstraint(Sketcher.Constraint("Equal", 3, 5))
sketch2.addConstraint(Sketcher.Constraint("Equal", 7, 9))
sketch2.addConstraint(Sketcher.Constraint("Equal", 11, 13))
sketch2.addConstraint(Sketcher.Constraint("Equal", 15, 45))
sketch2.addConstraint(Sketcher.Constraint("Equal", 47, 49))
sketch2.addConstraint(Sketcher.Constraint("Equal", 51, 53))
sketch2.addConstraint(Sketcher.Constraint("Equal", 55, 57))
sketch2.addConstraint(Sketcher.Constraint("Equal", 2, 4))
sketch2.addConstraint(Sketcher.Constraint("Equal", 6, 8))
sketch2.addConstraint(Sketcher.Constraint("Equal", 10, 12))
sketch2.addConstraint(Sketcher.Constraint("Equal", 24, 25))
sketch2.addConstraint(Sketcher.Constraint("Radius", 33, 1200.0))
sketch2.addConstraint(Sketcher.Constraint("DistanceX", 16, 1, 16, 2, 2500.0))
sketch2.addConstraint(Sketcher.Constraint("DistanceX", 24, 2, 24, 1, 1450.0))
sketch2.addConstraint(Sketcher.Constraint("DistanceX", 26, 2, 26, 1, 2450.0))
sketch2.addConstraint(Sketcher.Constraint("DistanceX", 29, 1, 29, 2, 4200.0))
sketch2.addConstraint(Sketcher.Constraint("DistanceX", 35, 1, 35, 2, 1210.0))
sketch2.addConstraint(Sketcher.Constraint("DistanceX", 37, 1, 37, 2, 3830.0))
sketch2.addConstraint(Sketcher.Constraint("DistanceX", 39, 2, 39, 1, 630.0))
sketch2.addConstraint(Sketcher.Constraint("DistanceX", 41, 2, 41, 1, 1840.0))
sketch2.addConstraint(Sketcher.Constraint("DistanceX", 43, 2, 43, 1, 2600.0))
sketch2.addConstraint(Sketcher.Constraint("DistanceY", 21, 2, 21, 1, 150.0))
sketch2.addConstraint(Sketcher.Constraint("DistanceY", 23, 1, 23, 2, 1570.0))
sketch2.addConstraint(Sketcher.Constraint("DistanceY", 27, 2, 27, 1, 6400.0))
sketch2.addConstraint(Sketcher.Constraint("DistanceY", 30, 1, 30, 2, 12420.0))
sketch2.addConstraint(Sketcher.Constraint("DistanceY", 38, 1, 38, 2, 70.0))
sketch2.addConstraint(Sketcher.Constraint("DistanceY", 40, 1, 40, 2, 180.0))
sketch2.addConstraint(Sketcher.Constraint("DistanceY", 42, 1, 42, 2, 6450.0))
sketch2.addConstraint(Sketcher.Constraint("Distance", 36, 560.0))
sketch2.addConstraint(Sketcher.Constraint("DistanceX", 1, 1, 1, 2, 393.7))
sketch2.addConstraint(Sketcher.Constraint("DistanceY", 0, 2, 0, 1, 368.3))
sketch2.addConstraint(Sketcher.Constraint("DistanceX", -1, 1, 33, 3, 3670.0))
sketch2.addConstraint(Sketcher.Constraint("DistanceX", -1, 1, 0, 2, 800.0))
sketch2.addConstraint(Sketcher.Constraint("DistanceY", 2, 2, -1, 1, 470.0))
sketch2.addConstraint(Sketcher.Constraint("DistanceX", -1, 1, 4, 2, 730.0))
sketch2.addConstraint(Sketcher.Constraint("DistanceY", 8, 2, -1, 1, 18230.0))
sketch2.addConstraint(Sketcher.Constraint("DistanceX", -1, 1, 17, 2, 19550.0))
sketch2.addConstraint(Sketcher.Constraint("DistanceX", -1, 1, 22, 2, 17450.0))
sketch2.addConstraint(Sketcher.Constraint("DistanceX", -1, 1, 26, 2, 9550.0))
sketch2.addConstraint(Sketcher.Constraint("DistanceY", 36, 2, -1, 1, 25300.0))
sketch2.addConstraint(Sketcher.Constraint("DistanceX", -1, 1, 45, 2, 23990.0))
sketch2.addConstraint(Sketcher.Constraint("DistanceY", 4, 2, -1, 1, 7256.6))
sketch2.addConstraint(Sketcher.Constraint("DistanceX", -1, 1, 8, 2, 558.8))
sketch2.addConstraint(Sketcher.Constraint("DistanceX", -1, 1, 12, 2, 596.9))
sketch2.addConstraint(Sketcher.Constraint("DistanceY", 12, 2, -1, 1, 12961.7))
sketch2.addConstraint(Sketcher.Constraint("DistanceX", 18, 2, 18, 1, 150.002418))
sketch2.addConstraint(Sketcher.Constraint("DistanceX", 20, 2, 20, 1, 2350.849335))
sketch2.addConstraint(Sketcher.Constraint("DistanceY", 33, 3, -1, 1, 33920.804149))
sketch2.addConstraint(Sketcher.Constraint("DistanceX", -1, 1, 16, 2, 19446.365472))
sketch2.addConstraint(Sketcher.Constraint("DistanceY", 22, 2, -1, 1, 20920.804149))
sketch2.addConstraint(Sketcher.Constraint("DistanceX", -1, 1, 52, 2, 23505.318928))
sketch2.addConstraint(Sketcher.Constraint("DistanceX", -1, 1, 48, 2, 23538.953978))
sketch2.addConstraint(Sketcher.Constraint("DistanceX", -1, 1, 56, 2, 23492.727873))
pad2 = doc.addObject("PartDesign::Pad", "Pad001")
body.addObject(pad2)
pad2.Profile = sketch2
pad2.Length = 10

sketch3 = doc.addObject("Sketcher::SketchObject", "Sketch002")
body.addObject(sketch3)
sketch3.AttachmentSupport = (doc.XY_Plane, [""])
sketch3.MapMode = "FlatFace"
sketch3.AttachmentOffset = App.Placement(App.Vector(0, 0, 10), App.Rotation())
sketch3.addGeometry(Part.LineSegment(App.Vector(4869.875697, -33920.804149, 0), App.Vector(7800, -33920.804149, 0)), False)
sketch3.addGeometry(Part.LineSegment(App.Vector(7800, -33920.804149, 0), App.Vector(8617.921822, -31107.153082, 0)), False)
sketch3.addGeometry(Part.ArcOfCircle(Part.Circle(App.Vector(7800, -33920.804149, 0), App.Vector(0, 0, 1), 2930.124303), math.radians(73.790975), math.radians(180)), False)
sketch3.addConstraint(Sketcher.Constraint("Coincident", 0, 2, 1, 1))
sketch3.addConstraint(Sketcher.Constraint("Coincident", 1, 2, 2, 1))
sketch3.addConstraint(Sketcher.Constraint("Coincident", 2, 2, 0, 1))
sketch3.addConstraint(Sketcher.Constraint("Horizontal", 0))
sketch3.addConstraint(Sketcher.Constraint("Coincident", 0, 2, 2, 3))
sketch3.addConstraint(Sketcher.Constraint("DistanceX", -1, 1, 2, 3, 7800.0))
sketch3.addConstraint(Sketcher.Constraint("Radius", 2, 2930.124303))
sketch3.addConstraint(Sketcher.Constraint("DistanceY", 2, 3, -1, 1, 33920.804149))
sketch3.addConstraint(Sketcher.Constraint("DistanceX", -1, 1, 1, 2, 8617.921822))
pad3 = doc.addObject("PartDesign::Pad", "Pad002")
body.addObject(pad3)
pad3.Profile = sketch3
pad3.Length = 10

sketch4 = doc.addObject("Sketcher::SketchObject", "Sketch003")
body.addObject(sketch4)
sketch4.AttachmentSupport = (doc.XY_Plane, [""])
sketch4.MapMode = "FlatFace"
sketch4.AttachmentOffset = App.Placement(App.Vector(0, 0, 20), App.Rotation())
sketch4.addGeometry(Part.LineSegment(App.Vector(7799.431484, -33922.759844, 0), App.Vector(8617.921822, -31107.153082, 0)), False)
sketch4.addGeometry(Part.LineSegment(App.Vector(8617.921822, -31107.153082, 0), App.Vector(8608.319324, -31104.361659, 0)), False)
sketch4.addGeometry(Part.LineSegment(App.Vector(8608.319324, -31104.361659, 0), App.Vector(7789.828987, -33919.96842, 0)), False)
sketch4.addGeometry(Part.LineSegment(App.Vector(7789.828987, -33919.96842, 0), App.Vector(7799.431484, -33922.759844, 0)), False)
sketch4.addConstraint(Sketcher.Constraint("Coincident", 0, 2, 1, 1))
sketch4.addConstraint(Sketcher.Constraint("Coincident", 1, 2, 2, 1))
sketch4.addConstraint(Sketcher.Constraint("Coincident", 2, 2, 3, 1))
sketch4.addConstraint(Sketcher.Constraint("Coincident", 3, 2, 0, 1))
sketch4.addConstraint(Sketcher.Constraint("Perpendicular", 0, 1))
sketch4.addConstraint(Sketcher.Constraint("Perpendicular", 1, 2))
sketch4.addConstraint(Sketcher.Constraint("Perpendicular", 2, 3))
sketch4.addConstraint(Sketcher.Constraint("Distance", 1, 10.0))
sketch4.addConstraint(Sketcher.Constraint("DistanceX", -1, 1, 0, 2, 8617.921822))
sketch4.addConstraint(Sketcher.Constraint("DistanceY", 1, 2, -1, 1, 31104.361659))
sketch4.addConstraint(Sketcher.Constraint("DistanceY", 2, 2, -1, 1, 33919.96842))
sketch4.addConstraint(Sketcher.Constraint("DistanceX", 3, 2, 1, 2, 808.88784))
pad4 = doc.addObject("PartDesign::Pad", "Pad003")
body.addObject(pad4)
pad4.Profile = sketch4
pad4.Length = 1

doc.recompute()
